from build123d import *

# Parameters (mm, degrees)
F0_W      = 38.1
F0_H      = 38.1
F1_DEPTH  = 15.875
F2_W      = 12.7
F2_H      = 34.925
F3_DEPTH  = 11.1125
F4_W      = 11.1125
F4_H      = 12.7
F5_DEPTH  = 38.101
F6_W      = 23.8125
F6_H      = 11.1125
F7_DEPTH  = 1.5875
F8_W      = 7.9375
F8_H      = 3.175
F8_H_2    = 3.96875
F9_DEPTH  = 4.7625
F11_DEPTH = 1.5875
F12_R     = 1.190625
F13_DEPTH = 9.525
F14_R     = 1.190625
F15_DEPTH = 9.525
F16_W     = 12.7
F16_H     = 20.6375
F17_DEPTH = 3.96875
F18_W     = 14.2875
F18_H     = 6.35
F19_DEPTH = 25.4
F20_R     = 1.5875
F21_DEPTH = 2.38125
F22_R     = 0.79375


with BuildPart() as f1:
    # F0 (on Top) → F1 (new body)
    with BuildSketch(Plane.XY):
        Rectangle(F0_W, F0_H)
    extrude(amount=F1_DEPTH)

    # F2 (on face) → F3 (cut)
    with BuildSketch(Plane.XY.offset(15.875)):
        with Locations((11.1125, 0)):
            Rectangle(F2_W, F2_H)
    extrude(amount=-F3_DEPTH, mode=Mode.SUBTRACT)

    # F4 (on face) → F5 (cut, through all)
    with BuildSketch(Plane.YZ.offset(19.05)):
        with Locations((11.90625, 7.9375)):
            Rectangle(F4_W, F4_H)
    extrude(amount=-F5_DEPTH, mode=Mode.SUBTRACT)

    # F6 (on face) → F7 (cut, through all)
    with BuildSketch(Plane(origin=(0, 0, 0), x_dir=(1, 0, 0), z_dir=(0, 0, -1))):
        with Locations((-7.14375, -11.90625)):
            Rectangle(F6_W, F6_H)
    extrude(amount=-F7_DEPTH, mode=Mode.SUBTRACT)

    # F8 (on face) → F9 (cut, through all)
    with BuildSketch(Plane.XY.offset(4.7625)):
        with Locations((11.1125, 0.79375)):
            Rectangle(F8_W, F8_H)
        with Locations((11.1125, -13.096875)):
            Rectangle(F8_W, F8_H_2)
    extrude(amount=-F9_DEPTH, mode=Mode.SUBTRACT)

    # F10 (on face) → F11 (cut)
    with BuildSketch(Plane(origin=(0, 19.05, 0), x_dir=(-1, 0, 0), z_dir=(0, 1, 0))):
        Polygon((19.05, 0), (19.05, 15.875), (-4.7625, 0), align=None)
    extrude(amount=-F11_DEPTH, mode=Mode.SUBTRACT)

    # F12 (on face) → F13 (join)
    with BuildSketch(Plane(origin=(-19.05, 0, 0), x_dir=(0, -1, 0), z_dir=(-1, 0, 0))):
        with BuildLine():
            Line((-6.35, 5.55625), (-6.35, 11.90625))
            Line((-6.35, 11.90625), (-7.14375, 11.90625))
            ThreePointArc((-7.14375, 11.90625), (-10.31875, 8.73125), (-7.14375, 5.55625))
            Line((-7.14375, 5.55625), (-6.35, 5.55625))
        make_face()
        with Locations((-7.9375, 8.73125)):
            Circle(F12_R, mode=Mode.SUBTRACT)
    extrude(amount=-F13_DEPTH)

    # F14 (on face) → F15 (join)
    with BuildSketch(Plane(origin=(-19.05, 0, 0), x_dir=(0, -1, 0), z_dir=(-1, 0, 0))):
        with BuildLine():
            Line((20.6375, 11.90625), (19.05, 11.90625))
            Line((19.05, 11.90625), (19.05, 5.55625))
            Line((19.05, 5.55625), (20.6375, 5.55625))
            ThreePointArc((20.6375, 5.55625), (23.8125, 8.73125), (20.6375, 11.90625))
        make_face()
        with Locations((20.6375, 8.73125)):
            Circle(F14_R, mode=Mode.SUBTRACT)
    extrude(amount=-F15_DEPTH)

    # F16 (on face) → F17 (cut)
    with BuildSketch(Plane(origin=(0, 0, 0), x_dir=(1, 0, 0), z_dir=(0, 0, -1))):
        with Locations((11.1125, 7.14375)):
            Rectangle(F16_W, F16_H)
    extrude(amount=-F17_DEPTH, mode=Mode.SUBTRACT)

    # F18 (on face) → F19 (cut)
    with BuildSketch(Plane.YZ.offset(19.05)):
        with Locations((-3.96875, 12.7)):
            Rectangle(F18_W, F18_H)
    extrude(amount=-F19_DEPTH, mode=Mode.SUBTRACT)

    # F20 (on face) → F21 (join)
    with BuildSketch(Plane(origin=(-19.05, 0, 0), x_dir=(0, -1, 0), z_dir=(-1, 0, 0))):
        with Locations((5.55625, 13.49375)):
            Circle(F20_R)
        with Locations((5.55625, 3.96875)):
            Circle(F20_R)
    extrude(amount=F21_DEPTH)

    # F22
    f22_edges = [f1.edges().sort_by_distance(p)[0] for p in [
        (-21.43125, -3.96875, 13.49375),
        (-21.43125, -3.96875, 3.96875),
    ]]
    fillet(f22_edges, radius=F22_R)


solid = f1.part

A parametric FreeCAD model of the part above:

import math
import FreeCAD as App
import Part
import Sketcher

V = App.Vector
Q = App.Units.Quantity


def edges_at(feature, points):
    """Names of the edges that pass closest to the given points."""
    edges = feature.Shape.Edges
    near = lambda p: min(range(len(edges)), key=lambda i: edges[i].distToShape(Part.Vertex(*p))[0])
    return sorted({f"Edge{near(p) + 1}" for p in points})


def add_polygon(sketch, points):
    """Adds a closed chain of lines whose ends are joined by coincident constraints."""
    first, n = sketch.GeometryCount, len(points)
    for a, b in zip(points, points[1:] + points[:1]):
        sketch.addGeometry(Part.LineSegment(App.Vector(*a, 0), App.Vector(*b, 0)), False)
    for i in range(n):
        sketch.addConstraint(Sketcher.Constraint("Coincident", first + i, 2, first + (i + 1) % n, 1))

doc = App.newDocument("Part")
body = doc.addObject("PartDesign::Body", "Body")

# Sketch on XY plane
sketch1 = body.newObject("Sketcher::SketchObject", "Sketch")
sketch1.AttachmentSupport = (doc.getObject("XY_Plane"), [""])
sketch1.MapMode = "FlatFace"
add_polygon(sketch1, [(-19.05, 19.05), (-19.05, -19.05), (19.05, -19.05), (19.05, 19.05)])  # lines 0-3
sketch1.addConstraint([
    Sketcher.Constraint("Vertical", 0),
    Sketcher.Constraint("Horizontal", 1),
    Sketcher.Constraint("Vertical", 2),
    Sketcher.Constraint("Horizontal", 3),
    Sketcher.Constraint("Symmetric", 0, 2, 2, 2, -1, 1),
    Sketcher.Constraint("Equal", 3, 0),
    Sketcher.Constraint("DistanceX", 1, 1, 1, 2, Q("1.5 in")),
])
pad1 = body.newObject("PartDesign::Pad", "Pad")
pad1.Profile = sketch1
pad1.Length = Q("0.625 in")

# Sketch on XY plane
sketch2 = body.newObject("Sketcher::SketchObject", "Sketch001")
sketch2.AttachmentSupport = (doc.getObject("XY_Plane"), [""])
sketch2.MapMode = "FlatFace"
sketch2.AttachmentOffset = App.Placement(V(0, 0, 0.625 * 25.4), App.Rotation())
add_polygon(sketch2, [(4.7625, 17.4625), (4.7625, -17.4625), (17.4625, -17.4625), (17.4625, 17.4625)])  # lines 0-3
sketch2.addConstraint([
    Sketcher.Constraint("Vertical", 0),
    Sketcher.Constraint("Horizontal", 1),
    Sketcher.Constraint("Vertical", 2),
    Sketcher.Constraint("Horizontal", 3),
    Sketcher.Constraint("DistanceX", 1, 1, 1, 2, Q("0.5 in")),
    Sketcher.Constraint("DistanceY", 0, 2, 0, 1, Q("1.375 in")),
    Sketcher.Constraint("DistanceX", -1, 1, 0, 2, Q("0.1875 in")),
    Sketcher.Constraint("DistanceY", 0, 2, -1, 1, Q("0.6875 in")),
])
pocket1 = body.newObject("PartDesign::Pocket", "Pocket")
pocket1.Profile = sketch2
pocket1.Length = Q("0.4375 in")

# Sketch on YZ plane
sketch3 = body.newObject("Sketcher::SketchObject", "Sketch002")
sketch3.AttachmentSupport = (doc.getObject("YZ_Plane"), [""])
sketch3.MapMode = "FlatFace"
sketch3.AttachmentOffset = App.Placement(V(0, 0, 0.75 * 25.4), App.Rotation())
add_polygon(sketch3, [(6.35, 14.2875), (6.35, 1.5875), (17.4625, 1.5875), (17.4625, 14.2875)])  # lines 0-3
sketch3.addConstraint([
    Sketcher.Constraint("Vertical", 0),
    Sketcher.Constraint("Horizontal", 1),
    Sketcher.Constraint("Vertical", 2),
    Sketcher.Constraint("Horizontal", 3),
    Sketcher.Constraint("DistanceY", 0, 2, 0, 1, Q("0.5 in")),
    Sketcher.Constraint("DistanceX", 1, 1, 1, 2, Q("0.4375 in")),
    Sketcher.Constraint("DistanceX", -1, 1, 0, 2, Q("0.25 in")),
    Sketcher.Constraint("DistanceY", -1, 1, 0, 2, Q("0.0625 in")),
])
pocket2 = body.newObject("PartDesign::Pocket", "Pocket001")
pocket2.Profile = sketch3
pocket2.Type = "ThroughAll"

# Sketch on XY plane
sketch4 = body.newObject("Sketcher::SketchObject", "Sketch003")
sketch4.AttachmentSupport = (doc.getObject("XY_Plane"), [""])
sketch4.MapMode = "FlatFace"
add_polygon(sketch4, [(-19.05, 6.35), (-19.05, 17.4625), (4.7625, 17.4625), (4.7625, 6.35)])  # lines 0-3
sketch4.addConstraint([
    Sketcher.Constraint("Vertical", 0),
    Sketcher.Constraint("Horizontal", 1),
    Sketcher.Constraint("Vertical", 2),
    Sketcher.Constraint("Horizontal", 3),
    Sketcher.Constraint("DistanceX", 1, 1, 1, 2, Q("0.9375 in")),
    Sketcher.Constraint("DistanceY", 0, 1, 0, 2, Q("0.4375 in")),
    Sketcher.Constraint("DistanceX", 0, 2, -1, 1, Q("0.75 in")),
    Sketcher.Constraint("DistanceY", -1, 1, 2, 2, Q("0.25 in")),
])
pocket3 = body.newObject("PartDesign::Pocket", "Pocket002")
pocket3.Profile = sketch4
pocket3.Length = Q("0.0625 in")
pocket3.Reversed = True

# Sketch on XY plane
sketch5 = body.newObject("Sketcher::SketchObject", "Sketch004")
sketch5.AttachmentSupport = (doc.getObject("XY_Plane"), [""])
sketch5.MapMode = "FlatFace"
sketch5.AttachmentOffset = App.Placement(V(0, 0, 0.1875 * 25.4), App.Rotation())
add_polygon(sketch5, [(7.14375, 2.38125), (7.14375, -0.79375), (15.08125, -0.79375), (15.08125, 2.38125)])  # lines 0-3
add_polygon(sketch5, [(7.14375, -11.1125), (7.14375, -15.08125), (15.08125, -15.08125), (15.08125, -11.1125)])  # lines 4-7
sketch5.addConstraint([
    Sketcher.Constraint("Vertical", 0),
    Sketcher.Constraint("Horizontal", 1),
    Sketcher.Constraint("Vertical", 2),
    Sketcher.Constraint("Horizontal", 3),
    Sketcher.Constraint("Vertical", 4),
    Sketcher.Constraint("Horizontal", 5),
    Sketcher.Constraint("Vertical", 6),
    Sketcher.Constraint("Horizontal", 7),
    Sketcher.Constraint("Vertical", 3, 2, 4, 2),
    Sketcher.Constraint("Vertical", 2, 2, 5, 2),
    Sketcher.Constraint("DistanceX", 1, 1, 1, 2, Q("0.3125 in")),
    Sketcher.Constraint("DistanceY", 0, 2, 0, 1, Q("0.125 in")),
    Sketcher.Constraint("DistanceY", 4, 2, 4, 1, Q("0.15625 in")),
    Sketcher.Constraint("DistanceX", -1, 1, 0, 2, Q("0.28125 in")),
    Sketcher.Constraint("DistanceY", 0, 2, -1, 1, Q("0.03125 in")),
    Sketcher.Constraint("DistanceY", 4, 2, -1, 1, Q("0.59375 in")),
])
pocket4 = body.newObject("PartDesign::Pocket", "Pocket003")
pocket4.Profile = sketch5
pocket4.Type = "ThroughAll"

# Sketch on XZ plane
sketch6 = body.newObject("Sketcher::SketchObject", "Sketch005")
sketch6.AttachmentSupport = (doc.getObject("XZ_Plane"), [""])
sketch6.MapMode = "FlatFace"
sketch6.AttachmentOffset = App.Placement(V(0, 0, -0.75 * 25.4), App.Rotation())
add_polygon(sketch6, [(-19.05, 0), (-19.05, 15.875), (4.7625, 0)])  # lines 0-2
sketch6.addConstraint([
    Sketcher.Constraint("Vertical", 0),
    Sketcher.Constraint("Horizontal", 2),
    Sketcher.Constraint("PointOnObject", 1, 2, -1),
    Sketcher.Constraint("DistanceX", 2, 2, 2, 1, Q("0.9375 in")),
    Sketcher.Constraint("DistanceY", 0, 1, 0, 2, Q("0.625 in")),
    Sketcher.Constraint("DistanceX", 0, 2, -1, 1, Q("0.75 in")),
])
pocket5 = body.newObject("PartDesign::Pocket", "Pocket004")
pocket5.Profile = sketch6
pocket5.Length = Q("0.0625 in")
pocket5.Reversed = True

# Sketch on YZ plane
sketch7 = body.newObject("Sketcher::SketchObject", "Sketch006")
sketch7.AttachmentSupport = (doc.getObject("YZ_Plane"), [""])
sketch7.MapMode = "FlatFace"
sketch7.AttachmentOffset = App.Placement(V(0, 0, -0.75 * 25.4), App.Rotation())
sketch7.addGeometry([
    Part.LineSegment(V(6.35, 5.55625, 0), V(6.35, 11.90625, 0)),  # 0
    Part.LineSegment(V(6.35, 11.90625, 0), V(7.14375, 11.90625, 0)),  # 1
    Part.ArcOfCircle(Part.Circle(V(7.14375, 8.73125, 0), V(0, 0, 1), 3.175), math.radians(-90), math.radians(90)),  # 2
    Part.LineSegment(V(7.14375, 5.55625, 0), V(6.35, 5.55625, 0)),  # 3
    Part.Circle(V(7.9375, 8.73125, 0), V(0, 0, 1), 1.190625),  # 4
], False)
sketch7.addConstraint([
    Sketcher.Constraint("Coincident", 0, 2, 1, 1),
    Sketcher.Constraint("Tangent", 1, 2, 2, 2),
    Sketcher.Constraint("Tangent", 2, 1, 3, 1),
    Sketcher.Constraint("Coincident", 3, 2, 0, 1),
    Sketcher.Constraint("Vertical", 0),
    Sketcher.Constraint("Horizontal", 1),
    Sketcher.Constraint("Horizontal", 3),
    Sketcher.Constraint("Horizontal", 2, 3, 4, 3),
    Sketcher.Constraint("Diameter", 4, Q("0.09375 in")),
    Sketcher.Constraint("Radius", 2, Q("0.125 in")),
    Sketcher.Constraint("DistanceX", 1, 1, 1, 2, Q("0.03125 in")),
    Sketcher.Constraint("DistanceX", -1, 1, 0, 2, Q("0.25 in")),
    Sketcher.Constraint("DistanceY", -1, 1, 2, 3, Q("0.34375 in")),
    Sketcher.Constraint("DistanceX", -1, 1, 4, 3, Q("0.3125 in")),
])
pad2 = body.newObject("PartDesign::Pad", "Pad001")
pad2.Profile = sketch7
pad2.Length = Q("0.375 in")

# Sketch on YZ plane
sketch8 = body.newObject("Sketcher::SketchObject", "Sketch007")
sketch8.AttachmentSupport = (doc.getObject("YZ_Plane"), [""])
sketch8.MapMode = "FlatFace"
sketch8.AttachmentOffset = App.Placement(V(0, 0, -0.75 * 25.4), App.Rotation())
sketch8.addGeometry([
    Part.LineSegment(V(-20.6375, 11.90625, 0), V(-19.05, 11.90625, 0)),  # 0
    Part.LineSegment(V(-19.05, 11.90625, 0), V(-19.05, 5.55625, 0)),  # 1
    Part.LineSegment(V(-19.05, 5.55625, 0), V(-20.6375, 5.55625, 0)),  # 2
    Part.ArcOfCircle(Part.Circle(V(-20.6375, 8.73125, 0), V(0, 0, 1), 3.175), math.radians(90), math.radians(270)),  # 3
    Part.Circle(V(-20.6375, 8.73125, 0), V(0, 0, 1), 1.190625),  # 4
], False)
sketch8.addConstraint([
    Sketcher.Constraint("Coincident", 0, 2, 1, 1),
    Sketcher.Constraint("Coincident", 1, 2, 2, 1),
    Sketcher.Constraint("Tangent", 2, 2, 3, 2),
    Sketcher.Constraint("Tangent", 3, 1, 0, 1),
    Sketcher.Constraint("Horizontal", 0),
    Sketcher.Constraint("Vertical", 1),
    Sketcher.Constraint("Horizontal", 2),
    Sketcher.Constraint("Coincident", 4, 3, 3, 3),
    Sketcher.Constraint("Diameter", 4, Q("0.09375 in")),
    Sketcher.Constraint("Radius", 3, Q("0.125 in")),
    Sketcher.Constraint("DistanceX", 0, 1, 0, 2, Q("0.0625 in")),
    Sketcher.Constraint("DistanceX", 0, 2, -1, 1, Q("0.75 in")),
    Sketcher.Constraint("DistanceY", -1, 1, 3, 3, Q("0.34375 in")),
])
pad3 = body.newObject("PartDesign::Pad", "Pad002")
pad3.Profile = sketch8
pad3.Length = Q("0.375 in")

# Sketch on XY plane
sketch9 = body.newObject("Sketcher::SketchObject", "Sketch008")
sketch9.AttachmentSupport = (doc.getObject("XY_Plane"), [""])
sketch9.MapMode = "FlatFace"
add_polygon(sketch9, [(4.7625, -17.4625), (4.7625, 3.175), (17.4625, 3.175), (17.4625, -17.4625)])  # lines 0-3
sketch9.addConstraint([
    Sketcher.Constraint("Vertical", 0),
    Sketcher.Constraint("Horizontal", 1),
    Sketcher.Constraint("Vertical", 2),
    Sketcher.Constraint("Horizontal", 3),
    Sketcher.Constraint("DistanceX", 1, 1, 1, 2, Q("0.5 in")),
    Sketcher.Constraint("DistanceY", 0, 1, 0, 2, Q("0.8125 in")),
    Sketcher.Constraint("DistanceX", -1, 1, 0, 2, Q("0.1875 in")),
    Sketcher.Constraint("DistanceY", -1, 1, 0, 2, Q("0.125 in")),
])
pocket6 = body.newObject("PartDesign::Pocket", "Pocket005")
pocket6.Profile = sketch9
pocket6.Length = Q("0.15625 in")
pocket6.Reversed = True

# Sketch on YZ plane
sketch10 = body.newObject("Sketcher::SketchObject", "Sketch009")
sketch10.AttachmentSupport = (doc.getObject("YZ_Plane"), [""])
sketch10.MapMode = "FlatFace"
sketch10.AttachmentOffset = App.Placement(V(0, 0, 0.75 * 25.4), App.Rotation())
add_polygon(sketch10, [(-11.1125, 15.875), (-11.1125, 9.525), (3.175, 9.525), (3.175, 15.875)])  # lines 0-3
sketch10.addConstraint([
    Sketcher.Constraint("Vertical", 0),
    Sketcher.Constraint("Horizontal", 1),
    Sketcher.Constraint("Vertical", 2),
    Sketcher.Constraint("Horizontal", 3),
    Sketcher.Constraint("DistanceY", 0, 2, 0, 1, Q("0.25 in")),
    Sketcher.Constraint("DistanceX", 1, 1, 1, 2, Q("0.5625 in")),
    Sketcher.Constraint("DistanceX", 0, 2, -1, 1, Q("0.4375 in")),
    Sketcher.Constraint("DistanceY", -1, 1, 0, 2, Q("0.375 in")),
])
pocket7 = body.newObject("PartDesign::Pocket", "Pocket006")
pocket7.Profile = sketch10
pocket7.Length = Q("1 in")

# Sketch on YZ plane
sketch11 = body.newObject("Sketcher::SketchObject", "Sketch010")
sketch11.AttachmentSupport = (doc.getObject("YZ_Plane"), [""])
sketch11.MapMode = "FlatFace"
sketch11.AttachmentOffset = App.Placement(V(0, 0, -0.75 * 25.4), App.Rotation())
sketch11.addGeometry([
    Part.Circle(V(-5.55625, 13.49375, 0), V(0, 0, 1), 1.5875),
    Part.Circle(V(-5.55625, 3.96875, 0), V(0, 0, 1), 1.5875),
], False)
sketch11.addConstraint([
    Sketcher.Constraint("Equal", 0, 1),
    Sketcher.Constraint("Vertical", 0, 3, 1, 3),
    Sketcher.Constraint("Diameter", 0, Q("0.125 in")),
    Sketcher.Constraint("DistanceX", 0, 3, -1, 1, Q("0.21875 in")),
    Sketcher.Constraint("DistanceY", -1, 1, 0, 3, Q("0.53125 in")),
    Sketcher.Constraint("DistanceY", -1, 1, 1, 3, Q("0.15625 in")),
])
pad4 = body.newObject("PartDesign::Pad", "Pad003")
pad4.Profile = sketch11
pad4.Length = Q("0.09375 in")
pad4.Reversed = True
doc.recompute()

fillet = body.newObject("PartDesign::Fillet", "Fillet")
fillet.Base = (pad4, edges_at(pad4, [(-21.431, -3.969, 13.494), (-21.431, -3.969, 3.969)]))
fillet.Radius = Q("0.03125 in")

doc.recompute()
